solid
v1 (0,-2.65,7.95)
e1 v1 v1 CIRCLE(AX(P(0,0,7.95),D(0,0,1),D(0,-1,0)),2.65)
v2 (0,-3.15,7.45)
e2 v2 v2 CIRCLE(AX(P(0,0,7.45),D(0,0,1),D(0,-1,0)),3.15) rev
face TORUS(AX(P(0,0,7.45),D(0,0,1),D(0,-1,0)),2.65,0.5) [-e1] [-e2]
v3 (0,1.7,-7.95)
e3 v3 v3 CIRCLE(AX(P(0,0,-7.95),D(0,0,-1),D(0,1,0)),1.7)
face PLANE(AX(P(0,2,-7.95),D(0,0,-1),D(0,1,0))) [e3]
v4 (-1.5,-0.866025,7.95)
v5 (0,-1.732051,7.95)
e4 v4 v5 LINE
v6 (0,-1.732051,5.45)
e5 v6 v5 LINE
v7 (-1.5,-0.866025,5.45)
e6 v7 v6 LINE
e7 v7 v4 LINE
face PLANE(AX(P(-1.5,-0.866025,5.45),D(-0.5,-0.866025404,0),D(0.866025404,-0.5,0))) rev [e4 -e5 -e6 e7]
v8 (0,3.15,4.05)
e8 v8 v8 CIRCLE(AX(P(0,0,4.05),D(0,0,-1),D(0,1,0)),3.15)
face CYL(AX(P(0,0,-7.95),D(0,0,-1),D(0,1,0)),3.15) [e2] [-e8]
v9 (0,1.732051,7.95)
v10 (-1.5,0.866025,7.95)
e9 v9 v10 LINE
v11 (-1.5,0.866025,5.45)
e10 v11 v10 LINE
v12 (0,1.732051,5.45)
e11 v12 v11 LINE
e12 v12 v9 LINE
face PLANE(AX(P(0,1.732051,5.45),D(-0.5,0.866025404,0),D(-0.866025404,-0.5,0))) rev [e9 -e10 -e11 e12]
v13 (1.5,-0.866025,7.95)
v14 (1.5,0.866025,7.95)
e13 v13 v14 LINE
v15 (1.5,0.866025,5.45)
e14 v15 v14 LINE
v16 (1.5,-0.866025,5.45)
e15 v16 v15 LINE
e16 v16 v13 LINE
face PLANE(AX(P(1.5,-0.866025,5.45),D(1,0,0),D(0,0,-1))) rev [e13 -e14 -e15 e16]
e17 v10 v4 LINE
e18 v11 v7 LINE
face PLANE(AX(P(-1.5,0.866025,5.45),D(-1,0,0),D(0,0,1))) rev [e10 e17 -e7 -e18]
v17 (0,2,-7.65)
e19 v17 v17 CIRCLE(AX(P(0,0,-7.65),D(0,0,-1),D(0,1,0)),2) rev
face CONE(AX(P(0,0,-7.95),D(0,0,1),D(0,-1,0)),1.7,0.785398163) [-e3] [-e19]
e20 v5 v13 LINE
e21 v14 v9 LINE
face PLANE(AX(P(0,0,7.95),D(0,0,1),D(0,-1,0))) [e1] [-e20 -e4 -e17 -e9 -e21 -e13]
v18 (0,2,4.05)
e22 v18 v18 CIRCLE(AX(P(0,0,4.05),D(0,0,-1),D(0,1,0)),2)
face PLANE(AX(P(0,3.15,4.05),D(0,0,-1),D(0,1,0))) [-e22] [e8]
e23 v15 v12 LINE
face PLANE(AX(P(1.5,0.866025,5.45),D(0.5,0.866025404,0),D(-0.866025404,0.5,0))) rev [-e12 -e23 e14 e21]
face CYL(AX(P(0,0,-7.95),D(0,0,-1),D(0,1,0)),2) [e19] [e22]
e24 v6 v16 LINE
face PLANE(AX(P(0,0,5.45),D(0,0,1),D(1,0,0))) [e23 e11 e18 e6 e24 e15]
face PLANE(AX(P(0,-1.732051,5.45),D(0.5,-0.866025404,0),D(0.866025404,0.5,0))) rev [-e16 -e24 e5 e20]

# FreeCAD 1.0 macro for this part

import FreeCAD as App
import Part
import Sketcher

V = App.Vector
Q = App.Units.Quantity


def edges_at(feature, points):
    """Names of the edges that pass closest to the given points."""
    edges = feature.Shape.Edges
    near = lambda p: min(range(len(edges)), key=lambda i: edges[i].distToShape(Part.Vertex(*p))[0])
    return sorted({f"Edge{near(p) + 1}" for p in points})

doc = App.newDocument("Part")
params = doc.addObject("Spreadsheet::Sheet", "Params")
for row, (alias, value) in enumerate([
    ("sketch1_width", "2 mm"),
    ("sketch1_height", "12 mm"),
    ("sketch1_height2", "15.9 mm"),
    ("sketch1_width2", "3.15 mm"),
    ("revolution_angle", "360 deg"),
    ("pocket1_length", "2.5 mm"),
    ("fillet_radius", "0.5 mm"),
    ("chamfer_size", "0.3 mm"),
], start=1):
    params.set(f"A{row}", alias)
    params.set(f"B{row}", "=" + value)
    params.setAlias(f"B{row}", alias)

body = doc.addObject("PartDesign::Body", "Body")

sketch1 = body.newObject("Sketcher::SketchObject", "Sketch")
sketch1.AttachmentSupport = (doc.getObject("YZ_Plane"), [""])
sketch1.MapMode = "FlatFace"
sketch1.addGeometry([
    Part.LineSegment(V(3.1, 8, 0), V(0, 8, 0)),
    Part.LineSegment(V(0, 8, 0), V(0, -8, 0)),
    Part.LineSegment(V(0, -8, 0), V(2, -8, 0)),
    Part.LineSegment(V(2, -8, 0), V(2, 4, 0)),
    Part.LineSegment(V(2, 4, 0), V(3.1, 4, 0)),
    Part.LineSegment(V(3.1, 4, 0), V(3.1, 8, 0)),
], False)
sketch1.addConstraint([
    Sketcher.Constraint("Coincident", 0, 2, 1, 1),
    Sketcher.Constraint("Coincident", 1, 2, 2, 1),
    Sketcher.Constraint("Coincident", 2, 2, 3, 1),
    Sketcher.Constraint("Coincident", 3, 2, 4, 1),
    Sketcher.Constraint("Coincident", 4, 2, 5, 1),
    Sketcher.Constraint("Coincident", 5, 2, 0, 1),
    Sketcher.Constraint("Horizontal", 0),
    Sketcher.Constraint("Vertical", 1),
    Sketcher.Constraint("Horizontal", 2),
    Sketcher.Constraint("Vertical", 3),
    Sketcher.Constraint("Horizontal", 4),
    Sketcher.Constraint("Vertical", 5),
    Sketcher.Constraint("Symmetric", 0, 2, 1, 2, -1, 1),
    Sketcher.Constraint("DistanceX", 2, 1, 2, 2, 2.0),
    Sketcher.Constraint("DistanceY", 3, 1, 3, 2, 12.0),
    Sketcher.Constraint("DistanceY", 1, 2, 1, 1, 15.9),
    Sketcher.Constraint("DistanceX", 0, 2, 0, 1, 3.15),
])
sketch1.setExpression("Constraints[13]", "Params.sketch1_width")
sketch1.setExpression("Constraints[14]", "Params.sketch1_height")
sketch1.setExpression("Constraints[15]", "Params.sketch1_height2")
sketch1.setExpression("Constraints[16]", "Params.sketch1_width2")
revolution = body.newObject("PartDesign::Revolution", "Revolution")
revolution.Profile = sketch1
revolution.ReferenceAxis = (sketch1, ["V_Axis"])
revolution.setExpression("Angle", "Params.revolution_angle")

sketch2 = body.newObject("Sketcher::SketchObject", "Sketch001")
sketch2.AttachmentSupport = (doc.getObject("XY_Plane"), [""])
sketch2.MapMode = "FlatFace"
sketch2.AttachmentOffset = App.Placement(V(0, 0, 7.95), App.Rotation())
sketch2.addGeometry([
    Part.LineSegment(V(0, 1.7, 0), V(-1.5, 0.9, 0)),
    Part.LineSegment(V(-1.5, 0.9, 0), V(-1.5, -0.9, 0)),
    Part.LineSegment(V(-1.5, -0.9, 0), V(0, -1.7, 0)),
    Part.LineSegment(V(0, -1.7, 0), V(1.5, -0.9, 0)),
    Part.LineSegment(V(1.5, -0.9, 0), V(1.5, 0.9, 0)),
    Part.LineSegment(V(1.5, 0.9, 0), V(0, 1.7, 0)),
], False)
sketch2.addConstraint([
    Sketcher.Constraint("Coincident", 0, 2, 1, 1),
    Sketcher.Constraint("Coincident", 1, 2, 2, 1),
    Sketcher.Constraint("Coincident", 2, 2, 3, 1),
    Sketcher.Constraint("Coincident", 3, 2, 4, 1),
    Sketcher.Constraint("Coincident", 4, 2, 5, 1),
    Sketcher.Constraint("Coincident", 5, 2, 0, 1),
    Sketcher.Constraint("Vertical", 1),
    Sketcher.Constraint("Vertical", 4),
    Sketcher.Constraint("Symmetric", 0, 2, 3, 2, -1, 1),
    Sketcher.Constraint("Symmetric", 2, 2, 5, 2, -1, 1),
    Sketcher.Constraint("PointOnObject", 2, 2, -2),
    Sketcher.Constraint("Parallel", 2, 5),
    Sketcher.Constraint("Horizontal", 1, 2, 3, 2),
    Sketcher.Constraint("Angle", 0, Q("-150 deg")),
    Sketcher.Constraint("DistanceX", 1, 2, 3, 2, 3.0),
    Sketcher.Constraint("DistanceY", 1, 2, 1, 1, 1.732051),
])
pocket1 = body.newObject("PartDesign::Pocket", "Pocket")
pocket1.Profile = sketch2
pocket1.setExpression("Length", "Params.pocket1_length")
doc.recompute()

fillet = body.newObject("PartDesign::Fillet", "Fillet")
fillet.Base = (pocket1, edges_at(pocket1, [(0, -3.15, 7.95)]))
fillet.setExpression("Radius", "Params.fillet_radius")
doc.recompute()

chamfer = body.newObject("PartDesign::Chamfer", "Chamfer")
chamfer.Base = (fillet, edges_at(fillet, [(0, -2, -7.95)]))
chamfer.setExpression("Size", "Params.chamfer_size")

doc.recompute()
